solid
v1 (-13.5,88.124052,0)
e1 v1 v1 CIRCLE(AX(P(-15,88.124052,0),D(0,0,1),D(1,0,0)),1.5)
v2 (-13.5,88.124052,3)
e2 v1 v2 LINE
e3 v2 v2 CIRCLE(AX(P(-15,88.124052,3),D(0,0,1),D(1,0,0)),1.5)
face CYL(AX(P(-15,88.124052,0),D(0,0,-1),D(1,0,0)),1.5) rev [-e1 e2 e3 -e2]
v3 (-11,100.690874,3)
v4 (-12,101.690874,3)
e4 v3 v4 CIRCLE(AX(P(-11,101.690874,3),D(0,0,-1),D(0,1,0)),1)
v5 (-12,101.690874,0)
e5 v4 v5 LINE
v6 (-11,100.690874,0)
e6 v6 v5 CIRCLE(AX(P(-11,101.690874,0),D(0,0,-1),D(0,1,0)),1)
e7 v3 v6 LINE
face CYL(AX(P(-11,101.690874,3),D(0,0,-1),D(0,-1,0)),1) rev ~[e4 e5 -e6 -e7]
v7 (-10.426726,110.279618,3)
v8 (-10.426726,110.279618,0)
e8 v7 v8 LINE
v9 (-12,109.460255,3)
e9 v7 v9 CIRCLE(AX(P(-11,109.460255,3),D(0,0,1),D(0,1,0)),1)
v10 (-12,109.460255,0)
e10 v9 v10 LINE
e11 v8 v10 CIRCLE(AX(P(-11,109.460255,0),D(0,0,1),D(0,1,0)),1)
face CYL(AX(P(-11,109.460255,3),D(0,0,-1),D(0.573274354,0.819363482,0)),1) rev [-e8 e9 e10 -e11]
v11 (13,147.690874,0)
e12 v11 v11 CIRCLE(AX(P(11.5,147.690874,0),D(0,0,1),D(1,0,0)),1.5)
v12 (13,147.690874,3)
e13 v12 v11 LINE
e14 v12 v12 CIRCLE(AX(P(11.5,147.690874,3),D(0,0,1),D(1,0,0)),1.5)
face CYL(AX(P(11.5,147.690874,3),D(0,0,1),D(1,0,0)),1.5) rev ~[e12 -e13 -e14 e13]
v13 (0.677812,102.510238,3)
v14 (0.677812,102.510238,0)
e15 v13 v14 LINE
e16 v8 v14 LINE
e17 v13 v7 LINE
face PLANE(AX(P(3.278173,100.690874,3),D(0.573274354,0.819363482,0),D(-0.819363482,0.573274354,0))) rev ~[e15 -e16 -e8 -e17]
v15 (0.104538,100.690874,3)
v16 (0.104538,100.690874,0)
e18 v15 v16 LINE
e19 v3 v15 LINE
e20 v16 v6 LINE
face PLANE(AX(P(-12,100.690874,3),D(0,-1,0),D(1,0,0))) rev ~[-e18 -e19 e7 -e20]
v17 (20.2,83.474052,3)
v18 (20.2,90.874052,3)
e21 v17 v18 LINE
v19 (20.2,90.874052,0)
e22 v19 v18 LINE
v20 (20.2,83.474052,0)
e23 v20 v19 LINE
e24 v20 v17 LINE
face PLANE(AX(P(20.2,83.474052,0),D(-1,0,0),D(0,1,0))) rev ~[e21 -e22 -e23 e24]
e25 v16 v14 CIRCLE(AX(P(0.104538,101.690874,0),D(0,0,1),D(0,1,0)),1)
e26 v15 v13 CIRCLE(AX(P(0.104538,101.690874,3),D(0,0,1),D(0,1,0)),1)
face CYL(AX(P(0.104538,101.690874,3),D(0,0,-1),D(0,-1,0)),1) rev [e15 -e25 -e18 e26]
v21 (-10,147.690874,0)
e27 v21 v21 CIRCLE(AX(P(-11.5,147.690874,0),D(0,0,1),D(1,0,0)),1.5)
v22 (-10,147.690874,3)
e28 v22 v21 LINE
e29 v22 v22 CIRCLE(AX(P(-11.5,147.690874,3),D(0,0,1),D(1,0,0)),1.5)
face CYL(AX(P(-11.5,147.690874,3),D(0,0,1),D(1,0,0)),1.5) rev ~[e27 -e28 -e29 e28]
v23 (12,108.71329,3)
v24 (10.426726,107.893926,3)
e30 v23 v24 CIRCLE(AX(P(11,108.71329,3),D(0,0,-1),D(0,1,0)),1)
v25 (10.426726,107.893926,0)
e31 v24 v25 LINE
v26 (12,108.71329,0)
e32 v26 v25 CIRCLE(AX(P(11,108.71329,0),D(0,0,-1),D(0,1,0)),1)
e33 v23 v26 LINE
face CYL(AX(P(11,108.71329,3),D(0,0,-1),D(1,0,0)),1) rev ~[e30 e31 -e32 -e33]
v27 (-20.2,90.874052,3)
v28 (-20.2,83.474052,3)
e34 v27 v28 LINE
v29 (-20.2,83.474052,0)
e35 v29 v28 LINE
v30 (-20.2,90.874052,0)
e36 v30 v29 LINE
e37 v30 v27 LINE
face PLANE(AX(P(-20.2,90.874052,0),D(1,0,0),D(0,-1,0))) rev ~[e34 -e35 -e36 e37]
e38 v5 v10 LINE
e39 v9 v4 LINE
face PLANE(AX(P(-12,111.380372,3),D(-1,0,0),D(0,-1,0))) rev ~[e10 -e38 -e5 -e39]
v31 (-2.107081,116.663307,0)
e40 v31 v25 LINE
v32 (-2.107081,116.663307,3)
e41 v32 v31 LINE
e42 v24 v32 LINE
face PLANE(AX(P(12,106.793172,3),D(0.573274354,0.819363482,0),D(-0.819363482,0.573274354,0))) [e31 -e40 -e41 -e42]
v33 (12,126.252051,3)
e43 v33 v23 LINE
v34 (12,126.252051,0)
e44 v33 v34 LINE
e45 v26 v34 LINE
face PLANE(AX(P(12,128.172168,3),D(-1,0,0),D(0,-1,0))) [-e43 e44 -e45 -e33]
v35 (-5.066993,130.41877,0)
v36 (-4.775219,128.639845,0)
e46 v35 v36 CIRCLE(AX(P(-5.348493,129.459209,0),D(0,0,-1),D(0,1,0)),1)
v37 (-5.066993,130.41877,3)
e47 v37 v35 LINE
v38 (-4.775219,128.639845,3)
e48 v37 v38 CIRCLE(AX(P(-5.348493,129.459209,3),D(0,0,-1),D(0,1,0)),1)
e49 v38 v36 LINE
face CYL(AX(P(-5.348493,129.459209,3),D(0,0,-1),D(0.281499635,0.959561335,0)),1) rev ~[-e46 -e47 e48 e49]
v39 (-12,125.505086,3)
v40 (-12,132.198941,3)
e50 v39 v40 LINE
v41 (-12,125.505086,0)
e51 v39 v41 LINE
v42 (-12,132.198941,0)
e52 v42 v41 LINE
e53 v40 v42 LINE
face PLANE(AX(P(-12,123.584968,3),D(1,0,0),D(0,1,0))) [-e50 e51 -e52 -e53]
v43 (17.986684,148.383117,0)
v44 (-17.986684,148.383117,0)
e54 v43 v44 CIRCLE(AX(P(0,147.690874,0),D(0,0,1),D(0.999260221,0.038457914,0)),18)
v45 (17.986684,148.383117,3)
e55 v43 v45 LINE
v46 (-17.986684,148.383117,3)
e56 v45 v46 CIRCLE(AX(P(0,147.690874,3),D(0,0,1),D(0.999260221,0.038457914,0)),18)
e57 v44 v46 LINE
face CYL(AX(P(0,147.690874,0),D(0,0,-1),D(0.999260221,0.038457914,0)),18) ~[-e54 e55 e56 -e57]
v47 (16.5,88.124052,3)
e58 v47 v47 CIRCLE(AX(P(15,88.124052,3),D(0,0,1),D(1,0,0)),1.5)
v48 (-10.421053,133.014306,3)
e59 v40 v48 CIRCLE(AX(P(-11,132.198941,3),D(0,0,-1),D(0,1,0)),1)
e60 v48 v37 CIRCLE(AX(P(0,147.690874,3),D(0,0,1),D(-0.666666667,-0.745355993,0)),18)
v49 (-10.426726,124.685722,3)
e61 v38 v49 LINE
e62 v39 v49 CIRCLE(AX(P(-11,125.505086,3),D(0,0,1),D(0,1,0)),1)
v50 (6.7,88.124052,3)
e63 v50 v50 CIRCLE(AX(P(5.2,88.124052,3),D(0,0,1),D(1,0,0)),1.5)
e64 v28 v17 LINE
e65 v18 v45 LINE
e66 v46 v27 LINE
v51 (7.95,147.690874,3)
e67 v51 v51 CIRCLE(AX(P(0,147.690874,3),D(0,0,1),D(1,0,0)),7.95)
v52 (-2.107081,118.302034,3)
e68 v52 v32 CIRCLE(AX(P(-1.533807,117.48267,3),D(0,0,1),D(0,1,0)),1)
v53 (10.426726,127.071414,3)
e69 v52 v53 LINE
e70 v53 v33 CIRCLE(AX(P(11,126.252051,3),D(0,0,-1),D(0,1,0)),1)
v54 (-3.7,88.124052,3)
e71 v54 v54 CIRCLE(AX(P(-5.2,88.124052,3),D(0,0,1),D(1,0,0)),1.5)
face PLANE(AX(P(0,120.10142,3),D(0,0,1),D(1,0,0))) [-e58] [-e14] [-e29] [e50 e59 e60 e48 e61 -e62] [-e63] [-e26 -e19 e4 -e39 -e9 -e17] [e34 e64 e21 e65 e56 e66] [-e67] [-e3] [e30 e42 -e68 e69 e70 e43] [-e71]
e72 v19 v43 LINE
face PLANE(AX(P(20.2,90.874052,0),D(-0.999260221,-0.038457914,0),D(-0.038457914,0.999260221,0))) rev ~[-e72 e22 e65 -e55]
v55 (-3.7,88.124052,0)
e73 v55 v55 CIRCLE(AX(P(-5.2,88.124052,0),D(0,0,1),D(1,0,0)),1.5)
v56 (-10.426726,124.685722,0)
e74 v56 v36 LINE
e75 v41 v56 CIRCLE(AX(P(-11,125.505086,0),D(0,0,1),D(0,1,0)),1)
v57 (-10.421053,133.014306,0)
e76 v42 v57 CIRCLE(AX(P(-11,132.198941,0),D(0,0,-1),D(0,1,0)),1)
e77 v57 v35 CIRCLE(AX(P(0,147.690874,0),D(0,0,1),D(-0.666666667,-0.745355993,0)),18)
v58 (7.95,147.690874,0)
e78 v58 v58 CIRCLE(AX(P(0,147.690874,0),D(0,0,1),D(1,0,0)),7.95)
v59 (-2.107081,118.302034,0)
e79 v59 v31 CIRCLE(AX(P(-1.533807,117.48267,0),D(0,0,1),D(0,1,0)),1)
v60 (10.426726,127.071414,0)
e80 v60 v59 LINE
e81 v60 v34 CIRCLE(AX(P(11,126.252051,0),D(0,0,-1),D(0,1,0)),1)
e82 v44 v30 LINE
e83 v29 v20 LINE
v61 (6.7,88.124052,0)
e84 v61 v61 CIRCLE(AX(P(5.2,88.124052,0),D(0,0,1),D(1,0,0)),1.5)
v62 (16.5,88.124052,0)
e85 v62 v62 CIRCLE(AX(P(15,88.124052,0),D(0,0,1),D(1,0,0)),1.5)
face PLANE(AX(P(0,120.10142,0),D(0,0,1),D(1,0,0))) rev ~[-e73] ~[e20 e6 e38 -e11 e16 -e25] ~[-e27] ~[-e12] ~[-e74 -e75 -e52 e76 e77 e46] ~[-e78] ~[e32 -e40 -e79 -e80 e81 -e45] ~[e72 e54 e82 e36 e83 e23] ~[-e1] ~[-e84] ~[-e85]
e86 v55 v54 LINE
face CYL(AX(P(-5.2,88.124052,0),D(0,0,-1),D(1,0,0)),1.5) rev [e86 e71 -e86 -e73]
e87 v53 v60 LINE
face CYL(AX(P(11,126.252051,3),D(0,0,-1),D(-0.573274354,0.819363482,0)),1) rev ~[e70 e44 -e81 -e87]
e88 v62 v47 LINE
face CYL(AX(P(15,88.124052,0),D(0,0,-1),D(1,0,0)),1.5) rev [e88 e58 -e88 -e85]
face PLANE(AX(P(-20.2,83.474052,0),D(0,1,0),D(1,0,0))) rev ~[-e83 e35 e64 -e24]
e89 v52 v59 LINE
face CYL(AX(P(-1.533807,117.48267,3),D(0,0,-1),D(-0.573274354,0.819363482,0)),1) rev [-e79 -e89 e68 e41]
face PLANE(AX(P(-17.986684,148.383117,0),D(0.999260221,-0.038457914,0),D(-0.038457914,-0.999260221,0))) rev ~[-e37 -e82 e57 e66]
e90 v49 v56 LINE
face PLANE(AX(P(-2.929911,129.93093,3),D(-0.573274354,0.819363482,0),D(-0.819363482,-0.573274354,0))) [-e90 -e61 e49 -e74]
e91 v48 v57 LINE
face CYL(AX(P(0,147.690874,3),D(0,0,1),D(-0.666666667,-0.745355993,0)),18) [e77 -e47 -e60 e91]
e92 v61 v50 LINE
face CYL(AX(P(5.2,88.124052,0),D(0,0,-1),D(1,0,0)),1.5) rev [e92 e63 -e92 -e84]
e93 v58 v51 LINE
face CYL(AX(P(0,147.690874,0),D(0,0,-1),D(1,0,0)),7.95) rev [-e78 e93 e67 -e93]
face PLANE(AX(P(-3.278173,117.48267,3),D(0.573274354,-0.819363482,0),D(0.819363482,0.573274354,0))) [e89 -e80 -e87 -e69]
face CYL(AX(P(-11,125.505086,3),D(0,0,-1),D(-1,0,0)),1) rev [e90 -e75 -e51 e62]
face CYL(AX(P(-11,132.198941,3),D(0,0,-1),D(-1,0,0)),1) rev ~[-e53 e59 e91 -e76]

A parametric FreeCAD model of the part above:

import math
import FreeCAD as App
import Part
import Sketcher
from FreeCAD import Vector


def edges_at(feature, points):
    """Names of the edges that pass closest to the given points."""
    edges = feature.Shape.Edges
    near = lambda p: min(range(len(edges)), key=lambda i: edges[i].distToShape(Part.Vertex(*p))[0])
    return sorted({f"Edge{near(p) + 1}" for p in points})


def add_polygon(sketch, points):
    """Adds a closed chain of lines whose ends are joined by coincident constraints."""
    first, n = sketch.GeometryCount, len(points)
    for a, b in zip(points, points[1:] + points[:1]):
        sketch.addGeometry(Part.LineSegment(App.Vector(*a, 0), App.Vector(*b, 0)), False)
    for i in range(n):
        sketch.addConstraint(Sketcher.Constraint("Coincident", first + i, 2, first + (i + 1) % n, 1))

doc = App.newDocument("Part")
body = doc.addObject("PartDesign::Body", "Body")

sketch1 = doc.addObject("Sketcher::SketchObject", "Sketch")
body.addObject(sketch1)
sketch1.AttachmentSupport = (doc.XY_Plane, [""])
sketch1.MapMode = "FlatFace"
sketch1.addGeometry([
    Part.LineSegment(Vector(20.2, 83.5, 0), Vector(20.2, 90.9, 0)),
    Part.LineSegment(Vector(20.2, 90.9, 0), Vector(18, 148.4, 0)),
    Part.ArcOfCircle(Part.Circle(Vector(0, 147.7, 0), Vector(0, 0, 1), 18), math.radians(2), math.radians(178)),
    Part.LineSegment(Vector(-18, 148.4, 0), Vector(-20.2, 90.9, 0)),
    Part.LineSegment(Vector(-20.2, 90.9, 0), Vector(-20.2, 83.5, 0)),
    Part.LineSegment(Vector(-20.2, 83.5, 0), Vector(20.2, 83.5, 0)),
    Part.Circle(Vector(-15, 88.1, 0), Vector(0, 0, 1), 1.5),
    Part.Circle(Vector(-5.2, 88.1, 0), Vector(0, 0, 1), 1.5),
    Part.Circle(Vector(5.2, 88.1, 0), Vector(0, 0, 1), 1.5),
    Part.Circle(Vector(15, 88.1, 0), Vector(0, 0, 1), 1.5),
    Part.Circle(Vector(0, 147.7, 0), Vector(0, 0, 1), 8),
], False)
sketch1.addConstraint([
    Sketcher.Constraint("Coincident", 0, 2, 1, 1),
    Sketcher.Constraint("Tangent", 1, 2, 2, 1),
    Sketcher.Constraint("Tangent", 2, 2, 3, 1),
    Sketcher.Constraint("Coincident", 3, 2, 4, 1),
    Sketcher.Constraint("Coincident", 4, 2, 5, 1),
    Sketcher.Constraint("Coincident", 5, 2, 0, 1),
    Sketcher.Constraint("Vertical", 0),
    Sketcher.Constraint("Vertical", 4),
    Sketcher.Constraint("Horizontal", 5),
    Sketcher.Constraint("Coincident", 10, 3, 2, 3),
    Sketcher.Constraint("Equal", 6, 7),
    Sketcher.Constraint("Equal", 7, 8),
    Sketcher.Constraint("Equal", 8, 9),
    Sketcher.Constraint("Symmetric", 7, 3, 8, 3, -2),
    Sketcher.Constraint("Symmetric", 6, 3, 9, 3, -2),
    Sketcher.Constraint("Symmetric", 1, 2, 2, 2, -2),
    Sketcher.Constraint("Horizontal", 6, 3, 7, 3),
    Sketcher.Constraint("Horizontal", 0, 2, 3, 2),
    Sketcher.Constraint("Diameter", 6, 3.0),
    Sketcher.Constraint("Radius", 2, 18.0),
    Sketcher.Constraint("Diameter", 10, 15.9),
    Sketcher.Constraint("DistanceX", 5, 1, 5, 2, 40.4),
    Sketcher.Constraint("DistanceY", 0, 1, 0, 2, 7.4),
    Sketcher.Constraint("DistanceX", 6, 3, -1, 1, 15.0),
    Sketcher.Constraint("DistanceX", 8, 3, 0, 2, 15.0),
    Sketcher.Constraint("DistanceY", 9, 3, 0, 2, 2.75),
    Sketcher.Constraint("Distance", 1, 57.55164),
    Sketcher.Constraint("DistanceY", -1, 1, 2, 3, 147.690874),
])
pad1 = doc.addObject("PartDesign::Pad", "Pad")
body.addObject(pad1)
pad1.Profile = sketch1
pad1.Length = 3

sketch2 = doc.addObject("Sketcher::SketchObject", "Sketch001")
body.addObject(sketch2)
sketch2.AttachmentSupport = (doc.XY_Plane, [""])
sketch2.MapMode = "FlatFace"
sketch2.AttachmentOffset = App.Placement(Vector(0, 0, 3), App.Rotation())
add_polygon(sketch2, [(12, 128), (-3, 117), (12, 107)])
sketch2.addConstraint([
    Sketcher.Constraint("Vertical", 2),
    Sketcher.Constraint("Equal", 0, 1),
    Sketcher.Constraint("DistanceX", -1, 1, 1, 2, 12.0),
    Sketcher.Constraint("DistanceY", 1, 2, 0, 2, 10.689498),
    Sketcher.Constraint("Distance", 0, 18.646392),
    Sketcher.Constraint("DistanceY", -1, 1, 0, 2, 117.48267),
])
pocket1 = doc.addObject("PartDesign::Pocket", "Pocket")
body.addObject(pocket1)
pocket1.Profile = sketch2
pocket1.Type = "UpToFirst"

sketch3 = doc.addObject("Sketcher::SketchObject", "Sketch002")
body.addObject(sketch3)
sketch3.AttachmentSupport = (doc.XY_Plane, [""])
sketch3.MapMode = "FlatFace"
sketch3.AttachmentOffset = App.Placement(Vector(0, 0, 3), App.Rotation())
sketch3.addGeometry([
    Part.ArcOfCircle(Part.Circle(Vector(0, 148, 0), Vector(0, 0, 1), 18), math.radians(-132), math.radians(-99)),
    Part.LineSegment(Vector(-12, 134, 0), Vector(-12, 124, 0)),
    Part.LineSegment(Vector(-12, 124, 0), Vector(-3, 130, 0)),
], False)
sketch3.addConstraint([
    Sketcher.Constraint("Coincident", 0, 1, 1, 1),
    Sketcher.Constraint("Coincident", 1, 2, 2, 1),
    Sketcher.Constraint("Coincident", 2, 2, 0, 2),
    Sketcher.Constraint("Vertical", 1),
    Sketcher.Constraint("PointOnObject", 0, 3, -2),
    Sketcher.Constraint("Radius", 0, 18.0),
    Sketcher.Constraint("DistanceX", 0, 1, -1, 1, 12.0),
    Sketcher.Constraint("DistanceY", 1, 2, 1, 1, 10.689498),
    Sketcher.Constraint("DistanceY", -1, 1, 1, 2, 123.584968),
    Sketcher.Constraint("DistanceX", 2, 2, -1, 1, 2.929911),
])
pocket2 = doc.addObject("PartDesign::Pocket", "Pocket001")
body.addObject(pocket2)
pocket2.Profile = sketch3
pocket2.Type = "UpToFirst"

sketch4 = doc.addObject("Sketcher::SketchObject", "Sketch003")
body.addObject(sketch4)
sketch4.AttachmentSupport = (doc.XY_Plane, [""])
sketch4.MapMode = "FlatFace"
sketch4.AttachmentOffset = App.Placement(Vector(0, 0, 3), App.Rotation())
add_polygon(sketch4, [(-12, 111), (-12, 101), (3, 101)])
sketch4.addConstraint([
    Sketcher.Constraint("Vertical", 0),
    Sketcher.Constraint("Horizontal", 1),
    Sketcher.Constraint("DistanceX", 0, 2, -1, 1, 12.0),
    Sketcher.Constraint("DistanceY", 0, 2, 0, 1, 10.689498),
    Sketcher.Constraint("Distance", 2, 18.646392),
    Sketcher.Constraint("DistanceY", -1, 1, 0, 2, 100.690874),
])
pocket3 = doc.addObject("PartDesign::Pocket", "Pocket002")
body.addObject(pocket3)
pocket3.Profile = sketch4
pocket3.Type = "UpToFirst"

sketch5 = doc.addObject("Sketcher::SketchObject", "Sketch004")
body.addObject(sketch5)
sketch5.AttachmentSupport = (doc.XY_Plane, [""])
sketch5.MapMode = "FlatFace"
sketch5.AttachmentOffset = App.Placement(Vector(0, 0, 3), App.Rotation())
sketch5.addGeometry(Part.Circle(Vector(-11.5, 147.7, 0), Vector(0, 0, 1), 1.5), False)
sketch5.addConstraint([
    Sketcher.Constraint("Diameter", 0, 3.0),
    Sketcher.Constraint("DistanceX", 0, 3, -1, 1, 11.5),
    Sketcher.Constraint("DistanceY", -1, 1, 0, 3, 147.690874),
])
pocket4 = doc.addObject("PartDesign::Pocket", "Pocket003")
body.addObject(pocket4)
pocket4.Profile = sketch5
pocket4.Type = "UpToFirst"

sketch6 = doc.addObject("Sketcher::SketchObject", "Sketch005")
body.addObject(sketch6)
sketch6.AttachmentSupport = (doc.XY_Plane, [""])
sketch6.MapMode = "FlatFace"
sketch6.AttachmentOffset = App.Placement(Vector(0, 0, 3), App.Rotation())
sketch6.addGeometry(Part.Circle(Vector(11.5, 147.7, 0), Vector(0, 0, 1), 1.5), False)
sketch6.addConstraint([
    Sketcher.Constraint("Diameter", 0, 3.0),
    Sketcher.Constraint("DistanceX", -1, 1, 0, 3, 11.5),
    Sketcher.Constraint("DistanceY", -1, 1, 0, 3, 147.690874),
])
pocket5 = doc.addObject("PartDesign::Pocket", "Pocket004")
body.addObject(pocket5)
pocket5.Profile = sketch6
pocket5.Type = "UpToFirst"
doc.recompute()

fillet = doc.addObject("PartDesign::Fillet", "Fillet")
body.addObject(fillet)
fillet.Base = (pocket5, edges_at(pocket5, [
    (-3.278, 117.483, 1.5),
    (12, 128.172, 1.5),
    (12, 106.793, 1.5),
    (-12, 134.274, 1.5),
    (-2.93, 129.931, 1.5),
    (-12, 123.585, 1.5),
    (-12, 111.38, 1.5),
    (3.278, 100.691, 1.5),
    (-12, 100.691, 1.5),
]))
fillet.Radius = 1

doc.recompute()
